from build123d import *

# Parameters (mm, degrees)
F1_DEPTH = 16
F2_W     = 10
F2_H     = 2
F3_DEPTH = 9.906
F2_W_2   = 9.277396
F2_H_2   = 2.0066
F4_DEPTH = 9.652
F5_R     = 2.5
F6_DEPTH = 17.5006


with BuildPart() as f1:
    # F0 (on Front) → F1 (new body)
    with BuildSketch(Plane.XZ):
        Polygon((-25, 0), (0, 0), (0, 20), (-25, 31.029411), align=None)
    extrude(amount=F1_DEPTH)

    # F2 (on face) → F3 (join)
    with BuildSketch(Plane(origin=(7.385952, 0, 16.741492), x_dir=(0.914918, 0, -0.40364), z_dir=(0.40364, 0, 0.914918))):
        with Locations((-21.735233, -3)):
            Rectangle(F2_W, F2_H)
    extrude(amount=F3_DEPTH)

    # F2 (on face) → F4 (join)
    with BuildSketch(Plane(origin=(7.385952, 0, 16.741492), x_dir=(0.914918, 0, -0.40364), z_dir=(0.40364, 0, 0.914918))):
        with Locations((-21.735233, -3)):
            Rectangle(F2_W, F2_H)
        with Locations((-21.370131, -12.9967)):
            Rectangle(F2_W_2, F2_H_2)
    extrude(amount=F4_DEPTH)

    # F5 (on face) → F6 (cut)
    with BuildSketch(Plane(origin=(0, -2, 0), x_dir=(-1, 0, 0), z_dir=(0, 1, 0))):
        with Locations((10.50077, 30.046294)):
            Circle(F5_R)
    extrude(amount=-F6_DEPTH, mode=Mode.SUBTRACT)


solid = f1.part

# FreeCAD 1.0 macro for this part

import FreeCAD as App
import Part
import Sketcher
from FreeCAD import Vector
Q = App.Units.Quantity


def add_polygon(sketch, points):
    """Adds a closed chain of lines whose ends are joined by coincident constraints."""
    first, n = sketch.GeometryCount, len(points)
    for a, b in zip(points, points[1:] + points[:1]):
        sketch.addGeometry(Part.LineSegment(App.Vector(*a, 0), App.Vector(*b, 0)), False)
    for i in range(n):
        sketch.addConstraint(Sketcher.Constraint("Coincident", first + i, 2, first + (i + 1) % n, 1))

doc = App.newDocument("Part")
body = doc.addObject("PartDesign::Body", "Body")

# Sketch on XZ plane
sketch1 = doc.addObject("Sketcher::SketchObject", "Sketch")
body.addObject(sketch1)
sketch1.AttachmentSupport = (doc.XZ_Plane, [""])
sketch1.MapMode = "FlatFace"
add_polygon(sketch1, [(-25, 0), (0, 0), (0, 20), (-25, 31)])  # lines 0-3
sketch1.addConstraint([
    Sketcher.Constraint("Horizontal", 0),
    Sketcher.Constraint("Vertical", 1),
    Sketcher.Constraint("Vertical", 3),
    Sketcher.Constraint("Coincident", 0, 2, -1, 1),
    Sketcher.Constraint("DistanceX", 0, 1, 0, 2, Q("25 mm")),
    Sketcher.Constraint("DistanceY", 1, 1, 1, 2, Q("20 mm")),
    Sketcher.Constraint("DistanceY", 3, 2, 3, 1, Q("31.029411 mm")),
])
pad1 = doc.addObject("PartDesign::Pad", "Pad")
body.addObject(pad1)
pad1.Profile = sketch1
pad1.Length = 16

# Sketch on an angled plane
sketch2 = doc.addObject("Sketcher::SketchObject", "Sketch001")
body.addObject(sketch2)
sketch2.Placement = App.Placement(Vector(7.385952, 0, 16.741492), App.Rotation(Vector(0.91491791, 0, -0.40363996), Vector(0, 0.999999999, 0), Vector(0.40363996, 0, 0.91491791), "ZXY"))
add_polygon(sketch2, [(-26.7, -2), (-26.7, -4), (-16.7, -4), (-16.7, -2)])  # lines 0-3
sketch2.addConstraint([
    Sketcher.Constraint("Vertical", 0),
    Sketcher.Constraint("Horizontal", 1),
    Sketcher.Constraint("Vertical", 2),
    Sketcher.Constraint("Horizontal", 3),
    Sketcher.Constraint("DistanceX", 1, 1, 1, 2, Q("10 mm")),
    Sketcher.Constraint("DistanceY", 0, 2, 0, 1, Q("2 mm")),
    Sketcher.Constraint("DistanceY", 0, 2, -1, 1, Q("4 mm")),
    Sketcher.Constraint("DistanceX", 0, 2, -1, 1, Q("26.735233 mm")),
])
pad2 = doc.addObject("PartDesign::Pad", "Pad001")
body.addObject(pad2)
pad2.Profile = sketch2
pad2.Length = 9.906

# Sketch on an angled plane
sketch3 = doc.addObject("Sketcher::SketchObject", "Sketch002")
body.addObject(sketch3)
sketch3.Placement = App.Placement(Vector(7.385952, 0, 16.741492), App.Rotation(Vector(0.91491791, 0, -0.40363996), Vector(0, 0.999999999, 0), Vector(0.40363996, 0, 0.91491791), "ZXY"))
add_polygon(sketch3, [(-26.7, -2), (-26.7, -4), (-16.7, -4), (-16.7, -2)])  # lines 0-3
add_polygon(sketch3, [(-26, -12), (-26, -14), (-16.7, -14), (-16.7, -12)])  # lines 4-7
sketch3.addConstraint([
    Sketcher.Constraint("Vertical", 0),
    Sketcher.Constraint("Horizontal", 1),
    Sketcher.Constraint("Vertical", 2),
    Sketcher.Constraint("Horizontal", 3),
    Sketcher.Constraint("Vertical", 4),
    Sketcher.Constraint("Horizontal", 5),
    Sketcher.Constraint("Vertical", 6),
    Sketcher.Constraint("Horizontal", 7),
    Sketcher.Constraint("DistanceX", 1, 1, 1, 2, Q("10 mm")),
    Sketcher.Constraint("DistanceY", 0, 2, 0, 1, Q("2 mm")),
    Sketcher.Constraint("DistanceY", 0, 2, -1, 1, Q("4 mm")),
    Sketcher.Constraint("DistanceY", 4, 2, -1, 1, Q("14 mm")),
    Sketcher.Constraint("DistanceY", 4, 2, 4, 1, Q("2.0066 mm")),
    Sketcher.Constraint("DistanceX", 1, 2, 5, 2, Q("0.0038 mm")),
    Sketcher.Constraint("DistanceX", 5, 1, 5, 2, Q("9.277396 mm")),
    Sketcher.Constraint("DistanceX", 4, 2, -1, 1, Q("26.008829 mm")),
])
pad3 = doc.addObject("PartDesign::Pad", "Pad002")
body.addObject(pad3)
pad3.Profile = sketch3
pad3.Length = 9.652

# Sketch on XZ plane
sketch4 = doc.addObject("Sketcher::SketchObject", "Sketch003")
body.addObject(sketch4)
sketch4.AttachmentSupport = (doc.XZ_Plane, [""])
sketch4.MapMode = "FlatFace"
sketch4.AttachmentOffset = App.Placement(Vector(0, 0, 2), App.Rotation())
sketch4.addGeometry(Part.Circle(Vector(-10.5, 30, 0), Vector(0, 0, 1), 2.5), False)
sketch4.addConstraint([
    Sketcher.Constraint("Diameter", 0, Q("5 mm")),
    Sketcher.Constraint("DistanceX", 0, 3, -1, 1, Q("10.50077 mm")),
    Sketcher.Constraint("DistanceY", -1, 1, 0, 3, Q("30.046294 mm")),
])
pocket1 = doc.addObject("PartDesign::Pocket", "Pocket")
body.addObject(pocket1)
pocket1.Profile = sketch4
pocket1.Length = 17.5006
pocket1.Reversed = True

doc.recompute()
